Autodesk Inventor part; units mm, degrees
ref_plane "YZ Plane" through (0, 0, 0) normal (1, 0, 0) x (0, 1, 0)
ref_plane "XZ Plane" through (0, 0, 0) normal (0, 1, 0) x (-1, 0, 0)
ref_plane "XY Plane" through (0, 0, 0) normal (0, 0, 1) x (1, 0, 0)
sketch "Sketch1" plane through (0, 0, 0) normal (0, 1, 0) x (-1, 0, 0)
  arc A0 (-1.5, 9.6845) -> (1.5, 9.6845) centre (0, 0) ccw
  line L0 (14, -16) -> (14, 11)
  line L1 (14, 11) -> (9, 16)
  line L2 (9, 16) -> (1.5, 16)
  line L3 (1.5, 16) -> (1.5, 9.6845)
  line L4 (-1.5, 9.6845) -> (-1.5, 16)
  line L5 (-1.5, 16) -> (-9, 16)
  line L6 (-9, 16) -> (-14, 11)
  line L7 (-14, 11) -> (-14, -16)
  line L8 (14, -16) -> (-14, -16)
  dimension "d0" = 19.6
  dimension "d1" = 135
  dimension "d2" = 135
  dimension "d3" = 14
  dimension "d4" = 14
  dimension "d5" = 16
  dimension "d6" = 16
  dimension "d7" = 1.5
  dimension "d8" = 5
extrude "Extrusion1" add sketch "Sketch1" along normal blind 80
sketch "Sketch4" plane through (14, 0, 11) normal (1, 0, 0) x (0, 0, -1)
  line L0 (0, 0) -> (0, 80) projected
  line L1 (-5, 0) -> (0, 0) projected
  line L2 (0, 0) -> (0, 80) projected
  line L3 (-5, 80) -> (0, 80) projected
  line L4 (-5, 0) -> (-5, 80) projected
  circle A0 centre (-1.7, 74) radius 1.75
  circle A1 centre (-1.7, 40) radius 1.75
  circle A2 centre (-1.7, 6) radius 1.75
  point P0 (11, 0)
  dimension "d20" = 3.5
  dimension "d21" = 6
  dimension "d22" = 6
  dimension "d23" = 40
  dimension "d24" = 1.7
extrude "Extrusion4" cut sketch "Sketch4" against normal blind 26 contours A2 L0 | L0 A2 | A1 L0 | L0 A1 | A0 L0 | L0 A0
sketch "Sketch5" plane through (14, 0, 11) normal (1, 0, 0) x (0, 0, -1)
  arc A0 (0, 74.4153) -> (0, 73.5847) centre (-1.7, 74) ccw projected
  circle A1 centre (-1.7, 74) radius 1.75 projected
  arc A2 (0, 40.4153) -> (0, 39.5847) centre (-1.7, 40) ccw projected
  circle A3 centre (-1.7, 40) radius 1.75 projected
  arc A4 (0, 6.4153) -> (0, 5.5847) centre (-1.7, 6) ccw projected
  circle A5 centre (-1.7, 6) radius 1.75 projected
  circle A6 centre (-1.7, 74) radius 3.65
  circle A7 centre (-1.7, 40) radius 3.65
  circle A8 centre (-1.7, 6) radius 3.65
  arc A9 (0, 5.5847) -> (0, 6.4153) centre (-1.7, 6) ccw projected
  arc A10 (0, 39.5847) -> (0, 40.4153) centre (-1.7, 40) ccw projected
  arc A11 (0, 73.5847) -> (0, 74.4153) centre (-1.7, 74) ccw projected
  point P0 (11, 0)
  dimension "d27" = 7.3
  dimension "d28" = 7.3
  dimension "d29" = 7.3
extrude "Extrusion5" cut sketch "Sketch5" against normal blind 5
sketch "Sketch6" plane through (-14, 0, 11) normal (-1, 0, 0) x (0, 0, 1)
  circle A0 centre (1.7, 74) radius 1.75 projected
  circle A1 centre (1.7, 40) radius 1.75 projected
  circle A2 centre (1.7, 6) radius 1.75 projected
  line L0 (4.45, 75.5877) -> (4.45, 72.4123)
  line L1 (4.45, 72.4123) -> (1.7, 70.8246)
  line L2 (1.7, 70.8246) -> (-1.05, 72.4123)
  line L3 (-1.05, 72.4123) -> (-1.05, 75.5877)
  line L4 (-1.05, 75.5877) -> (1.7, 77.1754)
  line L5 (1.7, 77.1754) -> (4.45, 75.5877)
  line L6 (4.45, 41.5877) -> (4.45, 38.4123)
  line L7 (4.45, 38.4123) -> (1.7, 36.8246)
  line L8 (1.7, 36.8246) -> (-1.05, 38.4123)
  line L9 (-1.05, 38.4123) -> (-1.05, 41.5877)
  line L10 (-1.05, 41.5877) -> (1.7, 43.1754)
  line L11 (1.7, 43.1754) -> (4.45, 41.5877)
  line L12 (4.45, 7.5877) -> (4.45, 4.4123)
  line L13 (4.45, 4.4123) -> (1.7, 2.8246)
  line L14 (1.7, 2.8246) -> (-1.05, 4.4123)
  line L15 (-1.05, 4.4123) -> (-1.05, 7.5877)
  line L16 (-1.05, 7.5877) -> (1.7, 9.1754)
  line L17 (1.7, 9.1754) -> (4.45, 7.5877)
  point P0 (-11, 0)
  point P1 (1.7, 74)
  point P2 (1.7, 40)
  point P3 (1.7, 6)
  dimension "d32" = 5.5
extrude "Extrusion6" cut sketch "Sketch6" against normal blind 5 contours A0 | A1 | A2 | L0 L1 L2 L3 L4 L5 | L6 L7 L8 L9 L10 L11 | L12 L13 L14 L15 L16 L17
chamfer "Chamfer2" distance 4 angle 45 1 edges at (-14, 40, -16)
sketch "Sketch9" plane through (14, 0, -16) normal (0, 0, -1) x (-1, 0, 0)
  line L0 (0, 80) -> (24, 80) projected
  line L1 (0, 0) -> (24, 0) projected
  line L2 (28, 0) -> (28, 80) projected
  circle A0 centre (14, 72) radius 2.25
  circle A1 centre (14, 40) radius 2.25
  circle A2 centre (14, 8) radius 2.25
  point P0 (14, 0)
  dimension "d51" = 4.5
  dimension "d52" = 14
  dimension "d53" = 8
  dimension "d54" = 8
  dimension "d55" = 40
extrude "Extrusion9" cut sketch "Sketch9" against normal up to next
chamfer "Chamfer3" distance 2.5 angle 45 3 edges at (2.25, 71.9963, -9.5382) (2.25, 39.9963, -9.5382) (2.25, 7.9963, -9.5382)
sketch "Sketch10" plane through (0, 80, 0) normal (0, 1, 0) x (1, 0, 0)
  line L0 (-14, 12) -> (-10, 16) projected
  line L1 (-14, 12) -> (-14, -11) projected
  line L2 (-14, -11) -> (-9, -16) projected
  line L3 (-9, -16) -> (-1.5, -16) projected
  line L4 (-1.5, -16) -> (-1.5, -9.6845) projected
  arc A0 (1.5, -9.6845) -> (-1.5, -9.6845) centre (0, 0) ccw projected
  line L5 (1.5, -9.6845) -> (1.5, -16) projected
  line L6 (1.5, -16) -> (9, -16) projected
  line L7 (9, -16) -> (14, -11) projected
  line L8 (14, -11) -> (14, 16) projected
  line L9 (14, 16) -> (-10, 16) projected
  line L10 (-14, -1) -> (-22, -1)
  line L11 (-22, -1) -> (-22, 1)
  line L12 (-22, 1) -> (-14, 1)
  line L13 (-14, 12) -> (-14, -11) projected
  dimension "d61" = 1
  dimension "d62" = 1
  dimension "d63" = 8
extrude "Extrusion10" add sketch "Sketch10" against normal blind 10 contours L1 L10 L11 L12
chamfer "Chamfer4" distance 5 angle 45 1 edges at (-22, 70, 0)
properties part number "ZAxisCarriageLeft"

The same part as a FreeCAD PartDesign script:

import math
import FreeCAD as App
import Part
import Sketcher
from FreeCAD import Vector
Q = App.Units.Quantity


def edges_at(feature, points):
    """Names of the edges that pass closest to the given points."""
    edges = feature.Shape.Edges
    near = lambda p: min(range(len(edges)), key=lambda i: edges[i].distToShape(Part.Vertex(*p))[0])
    return sorted({f"Edge{near(p) + 1}" for p in points})


def add_polygon(sketch, points):
    """Adds a closed chain of lines whose ends are joined by coincident constraints."""
    first, n = sketch.GeometryCount, len(points)
    for a, b in zip(points, points[1:] + points[:1]):
        sketch.addGeometry(Part.LineSegment(App.Vector(*a, 0), App.Vector(*b, 0)), False)
    for i in range(n):
        sketch.addConstraint(Sketcher.Constraint("Coincident", first + i, 2, first + (i + 1) % n, 1))

doc = App.newDocument("Part")
body = doc.addObject("PartDesign::Body", "Body")

# Sketch on XZ plane
sketch1 = body.newObject("Sketcher::SketchObject", "Sketch")
sketch1.AttachmentSupport = (doc.getObject("XZ_Plane"), [""])
sketch1.MapMode = "FlatFace"
sketch1.addGeometry(Part.ArcOfCircle(Part.Circle(Vector(0, 0, 0), Vector(0, 0, 1), 9.8), math.radians(99), math.radians(441)), False)
sketch1.addGeometry(Part.LineSegment(Vector(1.5, 9.7, 0), Vector(1.5, 16, 0)), False)
sketch1.addGeometry(Part.LineSegment(Vector(1.5, 16, 0), Vector(9, 16, 0)), False)
sketch1.addGeometry(Part.LineSegment(Vector(9, 16, 0), Vector(14, 11, 0)), False)
sketch1.addGeometry(Part.LineSegment(Vector(14, 11, 0), Vector(14, -16, 0)), False)
sketch1.addGeometry(Part.LineSegment(Vector(14, -16, 0), Vector(-14, -16, 0)), False)
sketch1.addGeometry(Part.LineSegment(Vector(-14, -16, 0), Vector(-14, 11, 0)), False)
sketch1.addGeometry(Part.LineSegment(Vector(-14, 11, 0), Vector(-9, 16, 0)), False)
sketch1.addGeometry(Part.LineSegment(Vector(-9, 16, 0), Vector(-1.5, 16, 0)), False)
sketch1.addGeometry(Part.LineSegment(Vector(-1.5, 16, 0), Vector(-1.5, 9.7, 0)), False)
sketch1.addConstraint(Sketcher.Constraint("Coincident", 0, 2, 1, 1))
sketch1.addConstraint(Sketcher.Constraint("Coincident", 1, 2, 2, 1))
sketch1.addConstraint(Sketcher.Constraint("Coincident", 2, 2, 3, 1))
sketch1.addConstraint(Sketcher.Constraint("Coincident", 3, 2, 4, 1))
sketch1.addConstraint(Sketcher.Constraint("Coincident", 4, 2, 5, 1))
sketch1.addConstraint(Sketcher.Constraint("Coincident", 5, 2, 6, 1))
sketch1.addConstraint(Sketcher.Constraint("Coincident", 6, 2, 7, 1))
sketch1.addConstraint(Sketcher.Constraint("Coincident", 7, 2, 8, 1))
sketch1.addConstraint(Sketcher.Constraint("Coincident", 8, 2, 9, 1))
sketch1.addConstraint(Sketcher.Constraint("Coincident", 9, 2, 0, 1))
sketch1.addConstraint(Sketcher.Constraint("Vertical", 1))
sketch1.addConstraint(Sketcher.Constraint("Horizontal", 2))
sketch1.addConstraint(Sketcher.Constraint("Vertical", 4))
sketch1.addConstraint(Sketcher.Constraint("Horizontal", 5))
sketch1.addConstraint(Sketcher.Constraint("Vertical", 6))
sketch1.addConstraint(Sketcher.Constraint("Horizontal", 8))
sketch1.addConstraint(Sketcher.Constraint("Vertical", 9))
sketch1.addConstraint(Sketcher.Constraint("Coincident", 0, 3, -1, 1))
sketch1.addConstraint(Sketcher.Constraint("Symmetric", 3, 2, 6, 2, -2))
sketch1.addConstraint(Sketcher.Constraint("Symmetric", 2, 2, 7, 2, -2))
sketch1.addConstraint(Sketcher.Constraint("Perpendicular", 3, 7))
sketch1.addConstraint(Sketcher.Constraint("Horizontal", 0, 2, 9, 2))
sketch1.addConstraint(Sketcher.Constraint("Radius", 0, 9.8))
sketch1.addConstraint(Sketcher.Constraint("DistanceY", -1, 1, 1, 2, 16.0))
sketch1.addConstraint(Sketcher.Constraint("DistanceX", -1, 1, 3, 2, 14.0))
sketch1.addConstraint(Sketcher.Constraint("DistanceY", 4, 2, -1, 1, 16.0))
sketch1.addConstraint(Sketcher.Constraint("DistanceX", 2, 2, 3, 2, 5.0))
sketch1.addConstraint(Sketcher.Constraint("DistanceX", -1, 1, 0, 2, 1.5))
pad1 = body.newObject("PartDesign::Pad", "Pad")
pad1.Profile = sketch1
pad1.Length = 80
pad1.Reversed = True

# Sketch on YZ plane
sketch2 = body.newObject("Sketcher::SketchObject", "Sketch001")
sketch2.AttachmentSupport = (doc.getObject("YZ_Plane"), [""])
sketch2.MapMode = "FlatFace"
sketch2.AttachmentOffset = App.Placement(Vector(0, 0, 14), App.Rotation())
sketch2.addGeometry(Part.Circle(Vector(6, 12.7, 0), Vector(0, 0, 1), 1.8), False)
sketch2.addGeometry(Part.Circle(Vector(40, 12.7, 0), Vector(0, 0, 1), 1.8), False)
sketch2.addGeometry(Part.Circle(Vector(74, 12.7, 0), Vector(0, 0, 1), 1.8), False)
sketch2.addConstraint(Sketcher.Constraint("Equal", 0, 1))
sketch2.addConstraint(Sketcher.Constraint("Equal", 1, 2))
sketch2.addConstraint(Sketcher.Constraint("Horizontal", 0, 3, 1, 3))
sketch2.addConstraint(Sketcher.Constraint("Horizontal", 1, 3, 2, 3))
sketch2.addConstraint(Sketcher.Constraint("Diameter", 0, 3.5))
sketch2.addConstraint(Sketcher.Constraint("DistanceX", -1, 1, 0, 3, 6.0))
sketch2.addConstraint(Sketcher.Constraint("DistanceX", -1, 1, 1, 3, 40.0))
sketch2.addConstraint(Sketcher.Constraint("DistanceX", -1, 1, 2, 3, 74.0))
sketch2.addConstraint(Sketcher.Constraint("DistanceY", -1, 1, 0, 3, 12.7))
pocket1 = body.newObject("PartDesign::Pocket", "Pocket")
pocket1.Profile = sketch2
pocket1.Length = 26

# Sketch on YZ plane
sketch3 = body.newObject("Sketcher::SketchObject", "Sketch002")
sketch3.AttachmentSupport = (doc.getObject("YZ_Plane"), [""])
sketch3.MapMode = "FlatFace"
sketch3.AttachmentOffset = App.Placement(Vector(0, 0, 14), App.Rotation())
sketch3.addGeometry(Part.Circle(Vector(74, 12.7, 0), Vector(0, 0, 1), 3.6), False)
sketch3.addGeometry(Part.Circle(Vector(74, 12.7, 0), Vector(0, 0, 1), 1.8), False)
sketch3.addGeometry(Part.Circle(Vector(40, 12.7, 0), Vector(0, 0, 1), 3.6), False)
sketch3.addGeometry(Part.Circle(Vector(40, 12.7, 0), Vector(0, 0, 1), 1.8), False)
sketch3.addGeometry(Part.Circle(Vector(6, 12.7, 0), Vector(0, 0, 1), 3.6), False)
sketch3.addGeometry(Part.Circle(Vector(6, 12.7, 0), Vector(0, 0, 1), 1.8), False)
sketch3.addConstraint(Sketcher.Constraint("Coincident", 1, 3, 0, 3))
sketch3.addConstraint(Sketcher.Constraint("Coincident", 3, 3, 2, 3))
sketch3.addConstraint(Sketcher.Constraint("Coincident", 5, 3, 4, 3))
sketch3.addConstraint(Sketcher.Constraint("Equal", 0, 2))
sketch3.addConstraint(Sketcher.Constraint("Equal", 1, 3))
sketch3.addConstraint(Sketcher.Constraint("Equal", 2, 4))
sketch3.addConstraint(Sketcher.Constraint("Equal", 3, 5))
sketch3.addConstraint(Sketcher.Constraint("Horizontal", 1, 3, 2, 3))
sketch3.addConstraint(Sketcher.Constraint("Horizontal", 3, 3, 4, 3))
sketch3.addConstraint(Sketcher.Constraint("Diameter", 0, 7.3))
sketch3.addConstraint(Sketcher.Constraint("Diameter", 1, 3.5))
sketch3.addConstraint(Sketcher.Constraint("DistanceX", -1, 1, 0, 3, 74.0))
sketch3.addConstraint(Sketcher.Constraint("DistanceX", -1, 1, 2, 3, 40.0))
sketch3.addConstraint(Sketcher.Constraint("DistanceX", -1, 1, 4, 3, 6.0))
sketch3.addConstraint(Sketcher.Constraint("DistanceY", -1, 1, 0, 3, 12.7))
pocket2 = body.newObject("PartDesign::Pocket", "Pocket001")
pocket2.Profile = sketch3
pocket2.Length = 5

# Sketch on YZ plane
sketch4 = body.newObject("Sketcher::SketchObject", "Sketch003")
sketch4.AttachmentSupport = (doc.getObject("YZ_Plane"), [""])
sketch4.MapMode = "FlatFace"
sketch4.AttachmentOffset = App.Placement(Vector(0, 0, -14), App.Rotation())
add_polygon(sketch4, [(72.4, 15.4), (75.6, 15.4), (77.2, 12.7), (75.6, 9.9), (72.4, 9.9), (70.8, 12.7)])  # lines 0-5
add_polygon(sketch4, [(38.4, 15.4), (41.6, 15.4), (43.2, 12.7), (41.6, 9.9), (38.4, 9.9), (36.8, 12.7)])  # lines 6-11
add_polygon(sketch4, [(4.4, 15.4), (7.6, 15.4), (9.2, 12.7), (7.6, 9.9), (4.4, 9.9), (2.8, 12.7)])  # lines 12-17
sketch4.addConstraint(Sketcher.Constraint("Horizontal", 0))
sketch4.addConstraint(Sketcher.Constraint("Horizontal", 3))
sketch4.addConstraint(Sketcher.Constraint("Horizontal", 6))
sketch4.addConstraint(Sketcher.Constraint("Horizontal", 9))
sketch4.addConstraint(Sketcher.Constraint("Horizontal", 12))
sketch4.addConstraint(Sketcher.Constraint("Horizontal", 15))
sketch4.addConstraint(Sketcher.Constraint("Parallel", 1, 4))
sketch4.addConstraint(Sketcher.Constraint("Parallel", 2, 5))
sketch4.addConstraint(Sketcher.Constraint("Parallel", 4, 7))
sketch4.addConstraint(Sketcher.Constraint("Parallel", 5, 8))
sketch4.addConstraint(Sketcher.Constraint("Parallel", 7, 10))
sketch4.addConstraint(Sketcher.Constraint("Parallel", 8, 11))
sketch4.addConstraint(Sketcher.Constraint("Parallel", 10, 13))
sketch4.addConstraint(Sketcher.Constraint("Parallel", 11, 14))
sketch4.addConstraint(Sketcher.Constraint("Parallel", 13, 16))
sketch4.addConstraint(Sketcher.Constraint("Parallel", 14, 17))
sketch4.addConstraint(Sketcher.Constraint("Horizontal", 1, 2, 4, 2))
sketch4.addConstraint(Sketcher.Constraint("Horizontal", 5, 2, 6, 2))
sketch4.addConstraint(Sketcher.Constraint("Horizontal", 4, 2, 7, 2))
sketch4.addConstraint(Sketcher.Constraint("Horizontal", 3, 2, 8, 2))
sketch4.addConstraint(Sketcher.Constraint("Horizontal", 7, 2, 10, 2))
sketch4.addConstraint(Sketcher.Constraint("Horizontal", 11, 2, 12, 2))
sketch4.addConstraint(Sketcher.Constraint("Horizontal", 10, 2, 13, 2))
sketch4.addConstraint(Sketcher.Constraint("Horizontal", 9, 2, 14, 2))
sketch4.addConstraint(Sketcher.Constraint("Horizontal", 13, 2, 16, 2))
sketch4.addConstraint(Sketcher.Constraint("Vertical", 0, 2, 2, 2))
sketch4.addConstraint(Sketcher.Constraint("Vertical", 3, 2, 5, 2))
sketch4.addConstraint(Sketcher.Constraint("Equal", 3, 6))
sketch4.addConstraint(Sketcher.Constraint("Equal", 9, 12))
sketch4.addConstraint(Sketcher.Constraint("DistanceY", 2, 2, 0, 2, 5.5))
sketch4.addConstraint(Sketcher.Constraint("Angle", 1, Q("-60.0002 deg")))
sketch4.addConstraint(Sketcher.Constraint("DistanceX", 6, 2, 0, 2, 34.0))
sketch4.addConstraint(Sketcher.Constraint("DistanceX", 12, 2, 6, 2, 34.0))
sketch4.addConstraint(Sketcher.Constraint("DistanceY", -1, 1, 1, 2, 12.7))
sketch4.addConstraint(Sketcher.Constraint("DistanceX", 0, 1, 0, 2, 3.1754))
sketch4.addConstraint(Sketcher.Constraint("DistanceX", -1, 1, 0, 2, 75.5877))
pocket3 = body.newObject("PartDesign::Pocket", "Pocket002")
pocket3.Profile = sketch4
pocket3.Length = 5
pocket3.Reversed = True
doc.recompute()

chamfer = body.newObject("PartDesign::Chamfer", "Chamfer")
chamfer.Base = (pocket3, edges_at(pocket3, [(-14, 40, -16)]))
chamfer.Size = 4

# Sketch on XY plane
sketch5 = body.newObject("Sketcher::SketchObject", "Sketch004")
sketch5.AttachmentSupport = (doc.getObject("XY_Plane"), [""])
sketch5.MapMode = "FlatFace"
sketch5.AttachmentOffset = App.Placement(Vector(0, 0, -16), App.Rotation())
sketch5.addGeometry(Part.Circle(Vector(0, 72, 0), Vector(0, 0, 1), 2.2), False)
sketch5.addGeometry(Part.Circle(Vector(0, 40, 0), Vector(0, 0, 1), 2.2), False)
sketch5.addGeometry(Part.Circle(Vector(0, 8, 0), Vector(0, 0, 1), 2.2), False)
sketch5.addConstraint(Sketcher.Constraint("Equal", 0, 1))
sketch5.addConstraint(Sketcher.Constraint("Equal", 1, 2))
sketch5.addConstraint(Sketcher.Constraint("PointOnObject", 0, 3, -2))
sketch5.addConstraint(Sketcher.Constraint("PointOnObject", 1, 3, -2))
sketch5.addConstraint(Sketcher.Constraint("PointOnObject", 2, 3, -2))
sketch5.addConstraint(Sketcher.Constraint("Diameter", 0, 4.5))
sketch5.addConstraint(Sketcher.Constraint("DistanceY", -1, 1, 1, 3, 40.0))
sketch5.addConstraint(Sketcher.Constraint("DistanceY", -1, 1, 2, 3, 8.0))
sketch5.addConstraint(Sketcher.Constraint("DistanceY", -1, 1, 0, 3, 72.0))
pocket4 = body.newObject("PartDesign::Pocket", "Pocket003")
pocket4.Profile = sketch5
pocket4.Length = 6.4618
pocket4.Reversed = True
doc.recompute()

chamfer2 = body.newObject("PartDesign::Chamfer", "Chamfer001")
chamfer2.Base = (pocket4, edges_at(pocket4, [(2.25, 71.996, -9.538), (2.25, 39.996, -9.538), (2.25, 7.996, -9.538)]))
chamfer2.Size = 2.5

# Sketch on XZ plane
sketch6 = body.newObject("Sketcher::SketchObject", "Sketch005")
sketch6.AttachmentSupport = (doc.getObject("XZ_Plane"), [""])
sketch6.MapMode = "FlatFace"
sketch6.AttachmentOffset = App.Placement(Vector(0, 0, -80), App.Rotation())
add_polygon(sketch6, [(-14, 1), (-14, -1), (-22, -1), (-22, 1)])  # lines 0-3
sketch6.addConstraint(Sketcher.Constraint("Vertical", 0))
sketch6.addConstraint(Sketcher.Constraint("Horizontal", 1))
sketch6.addConstraint(Sketcher.Constraint("Vertical", 2))
sketch6.addConstraint(Sketcher.Constraint("Horizontal", 3))
sketch6.addConstraint(Sketcher.Constraint("DistanceX", 1, 2, 1, 1, 8.0))
sketch6.addConstraint(Sketcher.Constraint("DistanceY", 0, 2, -1, 1, 1.0))
sketch6.addConstraint(Sketcher.Constraint("DistanceY", -1, 1, 2, 2, 1.0))
sketch6.addConstraint(Sketcher.Constraint("DistanceX", 0, 2, -1, 1, 14.0))
pad2 = body.newObject("PartDesign::Pad", "Pad001")
pad2.Profile = sketch6
pad2.Length = 10
doc.recompute()

chamfer3 = body.newObject("PartDesign::Chamfer", "Chamfer002")
chamfer3.Base = (pad2, edges_at(pad2, [(-22, 70, 0)]))
chamfer3.Size = 5

doc.recompute()
